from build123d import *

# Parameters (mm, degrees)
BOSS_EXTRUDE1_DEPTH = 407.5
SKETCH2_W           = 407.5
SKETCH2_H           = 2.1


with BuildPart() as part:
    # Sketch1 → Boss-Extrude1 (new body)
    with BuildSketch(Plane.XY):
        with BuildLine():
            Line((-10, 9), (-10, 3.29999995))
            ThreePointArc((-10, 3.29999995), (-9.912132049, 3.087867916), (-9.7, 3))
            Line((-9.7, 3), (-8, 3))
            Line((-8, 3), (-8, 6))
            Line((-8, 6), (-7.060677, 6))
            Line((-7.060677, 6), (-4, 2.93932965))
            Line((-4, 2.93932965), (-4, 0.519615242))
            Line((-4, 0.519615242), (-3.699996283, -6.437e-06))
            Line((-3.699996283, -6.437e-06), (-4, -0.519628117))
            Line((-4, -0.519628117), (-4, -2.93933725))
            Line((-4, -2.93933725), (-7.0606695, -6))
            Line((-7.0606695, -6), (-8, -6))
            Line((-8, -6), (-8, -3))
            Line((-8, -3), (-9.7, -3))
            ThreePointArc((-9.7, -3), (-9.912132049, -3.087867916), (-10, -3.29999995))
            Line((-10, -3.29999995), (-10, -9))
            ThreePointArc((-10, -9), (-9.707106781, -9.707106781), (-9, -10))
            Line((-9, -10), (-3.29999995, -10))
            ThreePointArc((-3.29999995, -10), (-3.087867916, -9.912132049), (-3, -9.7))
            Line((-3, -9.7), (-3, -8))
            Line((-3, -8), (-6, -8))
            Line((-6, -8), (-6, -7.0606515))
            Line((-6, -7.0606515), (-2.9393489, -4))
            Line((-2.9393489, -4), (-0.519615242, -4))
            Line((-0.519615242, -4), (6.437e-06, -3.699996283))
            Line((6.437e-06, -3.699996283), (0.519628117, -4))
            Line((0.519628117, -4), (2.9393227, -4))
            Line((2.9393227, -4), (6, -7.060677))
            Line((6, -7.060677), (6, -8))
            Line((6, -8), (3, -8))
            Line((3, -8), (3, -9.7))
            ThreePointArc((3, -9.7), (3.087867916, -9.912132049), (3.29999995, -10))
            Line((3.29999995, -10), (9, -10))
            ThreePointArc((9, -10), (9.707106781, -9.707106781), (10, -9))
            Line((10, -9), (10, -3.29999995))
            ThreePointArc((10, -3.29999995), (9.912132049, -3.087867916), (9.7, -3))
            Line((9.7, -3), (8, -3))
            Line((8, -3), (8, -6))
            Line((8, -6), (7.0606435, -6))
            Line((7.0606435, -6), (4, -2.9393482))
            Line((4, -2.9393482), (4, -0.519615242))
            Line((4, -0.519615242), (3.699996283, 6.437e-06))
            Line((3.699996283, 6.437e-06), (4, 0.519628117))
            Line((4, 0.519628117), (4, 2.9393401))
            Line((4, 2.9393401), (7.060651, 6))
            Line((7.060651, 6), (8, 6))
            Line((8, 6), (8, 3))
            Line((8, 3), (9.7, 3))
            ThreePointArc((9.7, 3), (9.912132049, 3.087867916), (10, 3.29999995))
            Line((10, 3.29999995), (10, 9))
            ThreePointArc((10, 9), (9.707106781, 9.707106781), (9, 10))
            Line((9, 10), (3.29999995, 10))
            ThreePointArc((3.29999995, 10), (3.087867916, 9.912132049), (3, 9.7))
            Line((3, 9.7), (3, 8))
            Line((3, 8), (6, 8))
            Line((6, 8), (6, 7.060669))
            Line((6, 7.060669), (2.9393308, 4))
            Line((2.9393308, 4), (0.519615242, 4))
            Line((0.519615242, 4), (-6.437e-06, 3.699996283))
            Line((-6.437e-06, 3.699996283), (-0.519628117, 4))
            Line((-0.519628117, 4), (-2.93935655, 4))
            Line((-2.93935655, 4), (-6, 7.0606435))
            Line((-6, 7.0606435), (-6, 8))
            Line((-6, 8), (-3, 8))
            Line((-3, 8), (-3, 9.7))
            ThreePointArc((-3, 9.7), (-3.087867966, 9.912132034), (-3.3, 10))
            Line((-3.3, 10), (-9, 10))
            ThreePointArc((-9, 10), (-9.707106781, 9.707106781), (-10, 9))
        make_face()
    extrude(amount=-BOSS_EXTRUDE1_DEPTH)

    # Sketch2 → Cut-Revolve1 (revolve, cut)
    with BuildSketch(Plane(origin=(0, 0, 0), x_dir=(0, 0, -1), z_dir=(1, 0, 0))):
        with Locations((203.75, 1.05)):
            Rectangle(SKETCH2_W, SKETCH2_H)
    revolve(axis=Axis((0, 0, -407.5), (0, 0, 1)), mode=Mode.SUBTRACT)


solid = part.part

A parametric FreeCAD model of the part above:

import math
import FreeCAD as App
import Part
import Sketcher
from FreeCAD import Vector
Q = App.Units.Quantity


def add_polygon(sketch, points):
    """Adds a closed chain of lines whose ends are joined by coincident constraints."""
    first, n = sketch.GeometryCount, len(points)
    for a, b in zip(points, points[1:] + points[:1]):
        sketch.addGeometry(Part.LineSegment(App.Vector(*a, 0), App.Vector(*b, 0)), False)
    for i in range(n):
        sketch.addConstraint(Sketcher.Constraint("Coincident", first + i, 2, first + (i + 1) % n, 1))

doc = App.newDocument("Part")
params = doc.addObject("Spreadsheet::Sheet", "Params")
for row, (alias, value) in enumerate([
    ("sketch1_radius", "1 mm"),
    ("sketch1_radius2", "0.3 mm"),
    ("sketch1_width", "3 mm"),
    ("sketch1_width2", "1.7 mm"),
    ("sketch1_width3", "5.7 mm"),
    ("pad1_length", "407.5 mm"),
    ("sketch2_width", "2.1 mm"),
    ("sketch2_height", "407.5 mm"),
    ("groove_angle", "360 deg"),
], start=1):
    params.set(f"A{row}", alias)
    params.set(f"B{row}", "=" + value)
    params.setAlias(f"B{row}", alias)

body = doc.addObject("PartDesign::Body", "Body")

sketch1 = body.newObject("Sketcher::SketchObject", "Sketch")
sketch1.AttachmentSupport = (doc.getObject("XY_Plane"), [""])
sketch1.MapMode = "FlatFace"
sketch1.addGeometry([
    Part.LineSegment(Vector(-10, 9, 0), Vector(-10, 3.3, 0)),
    Part.ArcOfCircle(Part.Circle(Vector(-9.7, 3.3, 0), Vector(0, 0, 1), 0.3), math.radians(180), math.radians(270)),
    Part.LineSegment(Vector(-9.7, 3, 0), Vector(-8, 3, 0)),
    Part.LineSegment(Vector(-8, 3, 0), Vector(-8, 6, 0)),
    Part.LineSegment(Vector(-8, 6, 0), Vector(-7.06, 6, 0)),
    Part.LineSegment(Vector(-7.06, 6, 0), Vector(-4, 2.94, 0)),
    Part.LineSegment(Vector(-4, 2.94, 0), Vector(-4, 0.52, 0)),
    Part.LineSegment(Vector(-4, 0.52, 0), Vector(-3.7, 0, 0)),
    Part.LineSegment(Vector(-3.7, 0, 0), Vector(-4, -0.52, 0)),
    Part.LineSegment(Vector(-4, -0.52, 0), Vector(-4, -2.94, 0)),
    Part.LineSegment(Vector(-4, -2.94, 0), Vector(-7.06, -6, 0)),
    Part.LineSegment(Vector(-7.06, -6, 0), Vector(-8, -6, 0)),
    Part.LineSegment(Vector(-8, -6, 0), Vector(-8, -3, 0)),
    Part.LineSegment(Vector(-8, -3, 0), Vector(-9.7, -3, 0)),
    Part.ArcOfCircle(Part.Circle(Vector(-9.7, -3.3, 0), Vector(0, 0, 1), 0.3), math.radians(90), math.radians(180)),
    Part.LineSegment(Vector(-10, -3.3, 0), Vector(-10, -9, 0)),
    Part.ArcOfCircle(Part.Circle(Vector(-9, -9, 0), Vector(0, 0, 1), 1), math.radians(-180), math.radians(-90)),
    Part.LineSegment(Vector(-9, -10, 0), Vector(-3.3, -10, 0)),
    Part.ArcOfCircle(Part.Circle(Vector(-3.3, -9.7, 0), Vector(0, 0, 1), 0.3), math.radians(-90), math.radians(0)),
    Part.LineSegment(Vector(-3, -9.7, 0), Vector(-3, -8, 0)),
    Part.LineSegment(Vector(-3, -8, 0), Vector(-6, -8, 0)),
    Part.LineSegment(Vector(-6, -8, 0), Vector(-6, -7.06, 0)),
    Part.LineSegment(Vector(-6, -7.06, 0), Vector(-2.94, -4, 0)),
    Part.LineSegment(Vector(-2.94, -4, 0), Vector(-0.52, -4, 0)),
    Part.LineSegment(Vector(-0.52, -4, 0), Vector(0, -3.7, 0)),
    Part.LineSegment(Vector(0, -3.7, 0), Vector(0.52, -4, 0)),
    Part.LineSegment(Vector(0.52, -4, 0), Vector(2.94, -4, 0)),
    Part.LineSegment(Vector(2.94, -4, 0), Vector(6, -7.06, 0)),
    Part.LineSegment(Vector(6, -7.06, 0), Vector(6, -8, 0)),
    Part.LineSegment(Vector(6, -8, 0), Vector(3, -8, 0)),
    Part.LineSegment(Vector(3, -8, 0), Vector(3, -9.7, 0)),
    Part.ArcOfCircle(Part.Circle(Vector(3.3, -9.7, 0), Vector(0, 0, 1), 0.3), math.radians(180), math.radians(270)),
    Part.LineSegment(Vector(3.3, -10, 0), Vector(9, -10, 0)),
    Part.ArcOfCircle(Part.Circle(Vector(9, -9, 0), Vector(0, 0, 1), 1), math.radians(-90), math.radians(0)),
    Part.LineSegment(Vector(10, -9, 0), Vector(10, -3.3, 0)),
    Part.ArcOfCircle(Part.Circle(Vector(9.7, -3.3, 0), Vector(0, 0, 1), 0.3), math.radians(0), math.radians(90)),
    Part.LineSegment(Vector(9.7, -3, 0), Vector(8, -3, 0)),
    Part.LineSegment(Vector(8, -3, 0), Vector(8, -6, 0)),
    Part.LineSegment(Vector(8, -6, 0), Vector(7.06, -6, 0)),
    Part.LineSegment(Vector(7.06, -6, 0), Vector(4, -2.94, 0)),
    Part.LineSegment(Vector(4, -2.94, 0), Vector(4, -0.52, 0)),
    Part.LineSegment(Vector(4, -0.52, 0), Vector(3.7, 0, 0)),
    Part.LineSegment(Vector(3.7, 0, 0), Vector(4, 0.52, 0)),
    Part.LineSegment(Vector(4, 0.52, 0), Vector(4, 2.94, 0)),
    Part.LineSegment(Vector(4, 2.94, 0), Vector(7.06, 6, 0)),
    Part.LineSegment(Vector(7.06, 6, 0), Vector(8, 6, 0)),
    Part.LineSegment(Vector(8, 6, 0), Vector(8, 3, 0)),
    Part.LineSegment(Vector(8, 3, 0), Vector(9.7, 3, 0)),
    Part.ArcOfCircle(Part.Circle(Vector(9.7, 3.3, 0), Vector(0, 0, 1), 0.3), math.radians(-90), math.radians(0)),
    Part.LineSegment(Vector(10, 3.3, 0), Vector(10, 9, 0)),
    Part.ArcOfCircle(Part.Circle(Vector(9, 9, 0), Vector(0, 0, 1), 1), math.radians(0), math.radians(90)),
    Part.LineSegment(Vector(9, 10, 0), Vector(3.3, 10, 0)),
    Part.ArcOfCircle(Part.Circle(Vector(3.3, 9.7, 0), Vector(0, 0, 1), 0.3), math.radians(90), math.radians(180)),
    Part.LineSegment(Vector(3, 9.7, 0), Vector(3, 8, 0)),
    Part.LineSegment(Vector(3, 8, 0), Vector(6, 8, 0)),
    Part.LineSegment(Vector(6, 8, 0), Vector(6, 7.06, 0)),
    Part.LineSegment(Vector(6, 7.06, 0), Vector(2.94, 4, 0)),
    Part.LineSegment(Vector(2.94, 4, 0), Vector(0.52, 4, 0)),
    Part.LineSegment(Vector(0.52, 4, 0), Vector(0, 3.7, 0)),
    Part.LineSegment(Vector(0, 3.7, 0), Vector(-0.52, 4, 0)),
    Part.LineSegment(Vector(-0.52, 4, 0), Vector(-2.94, 4, 0)),
    Part.LineSegment(Vector(-2.94, 4, 0), Vector(-6, 7.06, 0)),
    Part.LineSegment(Vector(-6, 7.06, 0), Vector(-6, 8, 0)),
    Part.LineSegment(Vector(-6, 8, 0), Vector(-3, 8, 0)),
    Part.LineSegment(Vector(-3, 8, 0), Vector(-3, 9.7, 0)),
    Part.ArcOfCircle(Part.Circle(Vector(-3.3, 9.7, 0), Vector(0, 0, 1), 0.3), math.radians(0), math.radians(90)),
    Part.LineSegment(Vector(-3.3, 10, 0), Vector(-9, 10, 0)),
    Part.ArcOfCircle(Part.Circle(Vector(-9, 9, 0), Vector(0, 0, 1), 1), math.radians(90), math.radians(180)),
], False)
sketch1.addConstraint([
    Sketcher.Constraint("Tangent", 0, 2, 1, 1),
    Sketcher.Constraint("Tangent", 1, 2, 2, 1),
    Sketcher.Constraint("Coincident", 2, 2, 3, 1),
    Sketcher.Constraint("Coincident", 3, 2, 4, 1),
    Sketcher.Constraint("Coincident", 4, 2, 5, 1),
    Sketcher.Constraint("Coincident", 5, 2, 6, 1),
    Sketcher.Constraint("Coincident", 6, 2, 7, 1),
    Sketcher.Constraint("Coincident", 7, 2, 8, 1),
    Sketcher.Constraint("Coincident", 8, 2, 9, 1),
    Sketcher.Constraint("Coincident", 9, 2, 10, 1),
    Sketcher.Constraint("Coincident", 10, 2, 11, 1),
    Sketcher.Constraint("Coincident", 11, 2, 12, 1),
    Sketcher.Constraint("Coincident", 12, 2, 13, 1),
    Sketcher.Constraint("Tangent", 13, 2, 14, 1),
    Sketcher.Constraint("Tangent", 14, 2, 15, 1),
    Sketcher.Constraint("Tangent", 15, 2, 16, 1),
    Sketcher.Constraint("Tangent", 16, 2, 17, 1),
    Sketcher.Constraint("Tangent", 17, 2, 18, 1),
    Sketcher.Constraint("Tangent", 18, 2, 19, 1),
    Sketcher.Constraint("Coincident", 19, 2, 20, 1),
    Sketcher.Constraint("Coincident", 20, 2, 21, 1),
    Sketcher.Constraint("Coincident", 21, 2, 22, 1),
    Sketcher.Constraint("Coincident", 22, 2, 23, 1),
    Sketcher.Constraint("Coincident", 23, 2, 24, 1),
    Sketcher.Constraint("Coincident", 24, 2, 25, 1),
    Sketcher.Constraint("Coincident", 25, 2, 26, 1),
    Sketcher.Constraint("Coincident", 26, 2, 27, 1),
    Sketcher.Constraint("Coincident", 27, 2, 28, 1),
    Sketcher.Constraint("Coincident", 28, 2, 29, 1),
    Sketcher.Constraint("Coincident", 29, 2, 30, 1),
    Sketcher.Constraint("Tangent", 30, 2, 31, 1),
    Sketcher.Constraint("Tangent", 31, 2, 32, 1),
    Sketcher.Constraint("Tangent", 32, 2, 33, 1),
    Sketcher.Constraint("Tangent", 33, 2, 34, 1),
    Sketcher.Constraint("Tangent", 34, 2, 35, 1),
    Sketcher.Constraint("Tangent", 35, 2, 36, 1),
    Sketcher.Constraint("Coincident", 36, 2, 37, 1),
    Sketcher.Constraint("Coincident", 37, 2, 38, 1),
    Sketcher.Constraint("Coincident", 38, 2, 39, 1),
    Sketcher.Constraint("Coincident", 39, 2, 40, 1),
    Sketcher.Constraint("Coincident", 40, 2, 41, 1),
    Sketcher.Constraint("Coincident", 41, 2, 42, 1),
    Sketcher.Constraint("Coincident", 42, 2, 43, 1),
    Sketcher.Constraint("Coincident", 43, 2, 44, 1),
    Sketcher.Constraint("Coincident", 44, 2, 45, 1),
    Sketcher.Constraint("Coincident", 45, 2, 46, 1),
    Sketcher.Constraint("Coincident", 46, 2, 47, 1),
    Sketcher.Constraint("Tangent", 47, 2, 48, 1),
    Sketcher.Constraint("Tangent", 48, 2, 49, 1),
    Sketcher.Constraint("Tangent", 49, 2, 50, 1),
    Sketcher.Constraint("Tangent", 50, 2, 51, 1),
    Sketcher.Constraint("Tangent", 51, 2, 52, 1),
    Sketcher.Constraint("Tangent", 52, 2, 53, 1),
    Sketcher.Constraint("Coincident", 53, 2, 54, 1),
    Sketcher.Constraint("Coincident", 54, 2, 55, 1),
    Sketcher.Constraint("Coincident", 55, 2, 56, 1),
    Sketcher.Constraint("Coincident", 56, 2, 57, 1),
    Sketcher.Constraint("Coincident", 57, 2, 58, 1),
    Sketcher.Constraint("Coincident", 58, 2, 59, 1),
    Sketcher.Constraint("Coincident", 59, 2, 60, 1),
    Sketcher.Constraint("Coincident", 60, 2, 61, 1),
    Sketcher.Constraint("Coincident", 61, 2, 62, 1),
    Sketcher.Constraint("Coincident", 62, 2, 63, 1),
    Sketcher.Constraint("Coincident", 63, 2, 64, 1),
    Sketcher.Constraint("Tangent", 64, 2, 65, 1),
    Sketcher.Constraint("Tangent", 65, 2, 66, 1),
    Sketcher.Constraint("Tangent", 66, 2, 67, 1),
    Sketcher.Constraint("Tangent", 67, 2, 0, 1),
    Sketcher.Constraint("Vertical", 0),
    Sketcher.Constraint("Horizontal", 2),
    Sketcher.Constraint("Vertical", 3),
    Sketcher.Constraint("Horizontal", 4),
    Sketcher.Constraint("Vertical", 6),
    Sketcher.Constraint("Vertical", 9),
    Sketcher.Constraint("Horizontal", 11),
    Sketcher.Constraint("Vertical", 12),
    Sketcher.Constraint("Horizontal", 13),
    Sketcher.Constraint("Vertical", 15),
    Sketcher.Constraint("Horizontal", 17),
    Sketcher.Constraint("Vertical", 19),
    Sketcher.Constraint("Horizontal", 20),
    Sketcher.Constraint("Vertical", 21),
    Sketcher.Constraint("Horizontal", 23),
    Sketcher.Constraint("Horizontal", 26),
    Sketcher.Constraint("Vertical", 28),
    Sketcher.Constraint("Horizontal", 29),
    Sketcher.Constraint("Vertical", 30),
    Sketcher.Constraint("Horizontal", 32),
    Sketcher.Constraint("Vertical", 34),
    Sketcher.Constraint("Horizontal", 36),
    Sketcher.Constraint("Vertical", 37),
    Sketcher.Constraint("Horizontal", 38),
    Sketcher.Constraint("Vertical", 40),
    Sketcher.Constraint("Vertical", 43),
    Sketcher.Constraint("Horizontal", 45),
    Sketcher.Constraint("Vertical", 46),
    Sketcher.Constraint("Horizontal", 47),
    Sketcher.Constraint("Vertical", 49),
    Sketcher.Constraint("Horizontal", 51),
    Sketcher.Constraint("Vertical", 53),
    Sketcher.Constraint("Horizontal", 54),
    Sketcher.Constraint("Vertical", 55),
    Sketcher.Constraint("Horizontal", 57),
    Sketcher.Constraint("Horizontal", 60),
    Sketcher.Constraint("Vertical", 62),
    Sketcher.Constraint("Horizontal", 63),
    Sketcher.Constraint("Vertical", 64),
    Sketcher.Constraint("Horizontal", 66),
    Sketcher.Constraint("Equal", 1, 14),
    Sketcher.Constraint("Equal", 14, 18),
    Sketcher.Constraint("Equal", 18, 31),
    Sketcher.Constraint("Equal", 16, 33),
    Sketcher.Constraint("Equal", 31, 35),
    Sketcher.Constraint("Equal", 35, 48),
    Sketcher.Constraint("Equal", 33, 50),
    Sketcher.Constraint("Equal", 48, 52),
    Sketcher.Constraint("Equal", 52, 65),
    Sketcher.Constraint("Equal", 50, 67),
    Sketcher.Constraint("Symmetric", 1, 3, 35, 3, -1, 1),
    Sketcher.Constraint("Symmetric", 14, 3, 48, 3, -1, 1),
    Sketcher.Constraint("Symmetric", 18, 3, 52, 3, -1, 1),
    Sketcher.Constraint("Symmetric", 31, 3, 65, 3, -1, 1),
    Sketcher.Constraint("Symmetric", 3, 2, 37, 2, -1, 1),
    Sketcher.Constraint("Symmetric", 6, 2, 40, 2, -1, 1),
    Sketcher.Constraint("Symmetric", 7, 2, 41, 2, -1, 1),
    Sketcher.Constraint("Symmetric", 8, 2, 42, 2, -1, 1),
    Sketcher.Constraint("Symmetric", 11, 2, 45, 2, -1, 1),
    Sketcher.Constraint("Symmetric", 20, 2, 54, 2, -1, 1),
    Sketcher.Constraint("Symmetric", 23, 2, 57, 2, -1, 1),
    Sketcher.Constraint("Symmetric", 24, 2, 58, 2, -1, 1),
    Sketcher.Constraint("Symmetric", 25, 2, 59, 2, -1, 1),
    Sketcher.Constraint("Symmetric", 28, 2, 62, 2, -1, 1),
    Sketcher.Constraint("Symmetric", 18, 3, 31, 3, -2),
    Sketcher.Constraint("Symmetric", 14, 3, 35, 3, -2),
    Sketcher.Constraint("Symmetric", 20, 2, 28, 2, -2),
    Sketcher.Constraint("Symmetric", 11, 2, 37, 2, -2),
    Sketcher.Constraint("Symmetric", 5, 2, 9, 2, -1),
    Sketcher.Constraint("Symmetric", 26, 2, 56, 2, -1),
    Sketcher.Constraint("Parallel", 10, 22),
    Sketcher.Constraint("Perpendicular", 7, 24),
    Sketcher.Constraint("Perpendicular", 8, 25),
    Sketcher.Constraint("Perpendicular", 22, 27),
    Sketcher.Constraint("Parallel", 27, 39),
    Sketcher.Constraint("Perpendicular", 27, 44),
    Sketcher.Constraint("Parallel", 44, 56),
    Sketcher.Constraint("Perpendicular", 56, 61),
    Sketcher.Constraint("Equal", 66, 0),
    Sketcher.Constraint("Equal", 63, 3),
    Sketcher.Constraint("Equal", 57, 6),
    Sketcher.Constraint("Equal", 47, 19),
    Sketcher.Constraint("Equal", 45, 21),
    Sketcher.Constraint("Equal", 4, 28),
    Sketcher.Constraint("Equal", 23, 40),
    Sketcher.Constraint("Equal", 11, 55),
    Sketcher.Constraint("Equal", 38, 62),
    Sketcher.Constraint("Equal", 7, 8),
    Sketcher.Constraint("Equal", 8, 24),
    Sketcher.Constraint("Radius", 16, Q("1 mm")),
    Sketcher.Constraint("Radius", 1, Q("0.3 mm")),
    Sketcher.Constraint("DistanceX", 20, 2, 20, 1, Q("3 mm")),
    Sketcher.Constraint("Angle", 7, Q("-60 deg")),
    Sketcher.Constraint("Angle", 22, Q("45.000004 deg")),
    Sketcher.Constraint("DistanceX", 2, 1, 2, 2, Q("1.7 mm")),
    Sketcher.Constraint("DistanceX", 17, 1, 17, 2, Q("5.7 mm")),
    Sketcher.Constraint("DistanceX", 16, 3, -1, 1, Q("9 mm")),
    Sketcher.Constraint("DistanceY", 16, 3, -1, 1, Q("9 mm")),
    Sketcher.Constraint("DistanceX", 5, 2, -1, 1, Q("4 mm")),
    Sketcher.Constraint("DistanceY", 22, 2, -1, 1, Q("4 mm")),
    Sketcher.Constraint("DistanceX", 11, 2, 11, 1, Q("0.93933 mm")),
    Sketcher.Constraint("DistanceX", 45, 1, 45, 2, Q("0.939349 mm")),
    Sketcher.Constraint("DistanceX", 60, 2, 60, 1, Q("2.419728 mm")),
    Sketcher.Constraint("DistanceX", 23, 1, 23, 2, Q("2.419734 mm")),
])
sketch1.setExpression("Constraints[157]", "Params.sketch1_radius")
sketch1.setExpression("Constraints[158]", "Params.sketch1_radius2")
sketch1.setExpression("Constraints[159]", "Params.sketch1_width")
sketch1.setExpression("Constraints[162]", "Params.sketch1_width2")
sketch1.setExpression("Constraints[163]", "Params.sketch1_width3")
pad1 = body.newObject("PartDesign::Pad", "Pad")
pad1.Profile = sketch1
pad1.setExpression("Length", "Params.pad1_length")
pad1.Reversed = True

sketch2 = body.newObject("Sketcher::SketchObject", "Sketch001")
sketch2.AttachmentSupport = (doc.getObject("YZ_Plane"), [""])
sketch2.MapMode = "FlatFace"
add_polygon(sketch2, [(2.1, 0), (0, 0), (0, -407.5), (2.1, -407.5)])
sketch2.addConstraint([
    Sketcher.Constraint("Horizontal", 0),
    Sketcher.Constraint("Vertical", 1),
    Sketcher.Constraint("Horizontal", 2),
    Sketcher.Constraint("Vertical", 3),
    Sketcher.Constraint("Coincident", 0, 2, -1, 1),
    Sketcher.Constraint("DistanceX", 0, 2, 0, 1, Q("2.1 mm")),
    Sketcher.Constraint("DistanceY", 1, 2, 1, 1, Q("407.5 mm")),
])
sketch2.setExpression("Constraints[9]", "Params.sketch2_width")
sketch2.setExpression("Constraints[10]", "Params.sketch2_height")
groove = body.newObject("PartDesign::Groove", "Groove")
groove.Profile = sketch2
groove.ReferenceAxis = (sketch2, ["V_Axis"])
groove.setExpression("Angle", "Params.groove_angle")

doc.recompute()
